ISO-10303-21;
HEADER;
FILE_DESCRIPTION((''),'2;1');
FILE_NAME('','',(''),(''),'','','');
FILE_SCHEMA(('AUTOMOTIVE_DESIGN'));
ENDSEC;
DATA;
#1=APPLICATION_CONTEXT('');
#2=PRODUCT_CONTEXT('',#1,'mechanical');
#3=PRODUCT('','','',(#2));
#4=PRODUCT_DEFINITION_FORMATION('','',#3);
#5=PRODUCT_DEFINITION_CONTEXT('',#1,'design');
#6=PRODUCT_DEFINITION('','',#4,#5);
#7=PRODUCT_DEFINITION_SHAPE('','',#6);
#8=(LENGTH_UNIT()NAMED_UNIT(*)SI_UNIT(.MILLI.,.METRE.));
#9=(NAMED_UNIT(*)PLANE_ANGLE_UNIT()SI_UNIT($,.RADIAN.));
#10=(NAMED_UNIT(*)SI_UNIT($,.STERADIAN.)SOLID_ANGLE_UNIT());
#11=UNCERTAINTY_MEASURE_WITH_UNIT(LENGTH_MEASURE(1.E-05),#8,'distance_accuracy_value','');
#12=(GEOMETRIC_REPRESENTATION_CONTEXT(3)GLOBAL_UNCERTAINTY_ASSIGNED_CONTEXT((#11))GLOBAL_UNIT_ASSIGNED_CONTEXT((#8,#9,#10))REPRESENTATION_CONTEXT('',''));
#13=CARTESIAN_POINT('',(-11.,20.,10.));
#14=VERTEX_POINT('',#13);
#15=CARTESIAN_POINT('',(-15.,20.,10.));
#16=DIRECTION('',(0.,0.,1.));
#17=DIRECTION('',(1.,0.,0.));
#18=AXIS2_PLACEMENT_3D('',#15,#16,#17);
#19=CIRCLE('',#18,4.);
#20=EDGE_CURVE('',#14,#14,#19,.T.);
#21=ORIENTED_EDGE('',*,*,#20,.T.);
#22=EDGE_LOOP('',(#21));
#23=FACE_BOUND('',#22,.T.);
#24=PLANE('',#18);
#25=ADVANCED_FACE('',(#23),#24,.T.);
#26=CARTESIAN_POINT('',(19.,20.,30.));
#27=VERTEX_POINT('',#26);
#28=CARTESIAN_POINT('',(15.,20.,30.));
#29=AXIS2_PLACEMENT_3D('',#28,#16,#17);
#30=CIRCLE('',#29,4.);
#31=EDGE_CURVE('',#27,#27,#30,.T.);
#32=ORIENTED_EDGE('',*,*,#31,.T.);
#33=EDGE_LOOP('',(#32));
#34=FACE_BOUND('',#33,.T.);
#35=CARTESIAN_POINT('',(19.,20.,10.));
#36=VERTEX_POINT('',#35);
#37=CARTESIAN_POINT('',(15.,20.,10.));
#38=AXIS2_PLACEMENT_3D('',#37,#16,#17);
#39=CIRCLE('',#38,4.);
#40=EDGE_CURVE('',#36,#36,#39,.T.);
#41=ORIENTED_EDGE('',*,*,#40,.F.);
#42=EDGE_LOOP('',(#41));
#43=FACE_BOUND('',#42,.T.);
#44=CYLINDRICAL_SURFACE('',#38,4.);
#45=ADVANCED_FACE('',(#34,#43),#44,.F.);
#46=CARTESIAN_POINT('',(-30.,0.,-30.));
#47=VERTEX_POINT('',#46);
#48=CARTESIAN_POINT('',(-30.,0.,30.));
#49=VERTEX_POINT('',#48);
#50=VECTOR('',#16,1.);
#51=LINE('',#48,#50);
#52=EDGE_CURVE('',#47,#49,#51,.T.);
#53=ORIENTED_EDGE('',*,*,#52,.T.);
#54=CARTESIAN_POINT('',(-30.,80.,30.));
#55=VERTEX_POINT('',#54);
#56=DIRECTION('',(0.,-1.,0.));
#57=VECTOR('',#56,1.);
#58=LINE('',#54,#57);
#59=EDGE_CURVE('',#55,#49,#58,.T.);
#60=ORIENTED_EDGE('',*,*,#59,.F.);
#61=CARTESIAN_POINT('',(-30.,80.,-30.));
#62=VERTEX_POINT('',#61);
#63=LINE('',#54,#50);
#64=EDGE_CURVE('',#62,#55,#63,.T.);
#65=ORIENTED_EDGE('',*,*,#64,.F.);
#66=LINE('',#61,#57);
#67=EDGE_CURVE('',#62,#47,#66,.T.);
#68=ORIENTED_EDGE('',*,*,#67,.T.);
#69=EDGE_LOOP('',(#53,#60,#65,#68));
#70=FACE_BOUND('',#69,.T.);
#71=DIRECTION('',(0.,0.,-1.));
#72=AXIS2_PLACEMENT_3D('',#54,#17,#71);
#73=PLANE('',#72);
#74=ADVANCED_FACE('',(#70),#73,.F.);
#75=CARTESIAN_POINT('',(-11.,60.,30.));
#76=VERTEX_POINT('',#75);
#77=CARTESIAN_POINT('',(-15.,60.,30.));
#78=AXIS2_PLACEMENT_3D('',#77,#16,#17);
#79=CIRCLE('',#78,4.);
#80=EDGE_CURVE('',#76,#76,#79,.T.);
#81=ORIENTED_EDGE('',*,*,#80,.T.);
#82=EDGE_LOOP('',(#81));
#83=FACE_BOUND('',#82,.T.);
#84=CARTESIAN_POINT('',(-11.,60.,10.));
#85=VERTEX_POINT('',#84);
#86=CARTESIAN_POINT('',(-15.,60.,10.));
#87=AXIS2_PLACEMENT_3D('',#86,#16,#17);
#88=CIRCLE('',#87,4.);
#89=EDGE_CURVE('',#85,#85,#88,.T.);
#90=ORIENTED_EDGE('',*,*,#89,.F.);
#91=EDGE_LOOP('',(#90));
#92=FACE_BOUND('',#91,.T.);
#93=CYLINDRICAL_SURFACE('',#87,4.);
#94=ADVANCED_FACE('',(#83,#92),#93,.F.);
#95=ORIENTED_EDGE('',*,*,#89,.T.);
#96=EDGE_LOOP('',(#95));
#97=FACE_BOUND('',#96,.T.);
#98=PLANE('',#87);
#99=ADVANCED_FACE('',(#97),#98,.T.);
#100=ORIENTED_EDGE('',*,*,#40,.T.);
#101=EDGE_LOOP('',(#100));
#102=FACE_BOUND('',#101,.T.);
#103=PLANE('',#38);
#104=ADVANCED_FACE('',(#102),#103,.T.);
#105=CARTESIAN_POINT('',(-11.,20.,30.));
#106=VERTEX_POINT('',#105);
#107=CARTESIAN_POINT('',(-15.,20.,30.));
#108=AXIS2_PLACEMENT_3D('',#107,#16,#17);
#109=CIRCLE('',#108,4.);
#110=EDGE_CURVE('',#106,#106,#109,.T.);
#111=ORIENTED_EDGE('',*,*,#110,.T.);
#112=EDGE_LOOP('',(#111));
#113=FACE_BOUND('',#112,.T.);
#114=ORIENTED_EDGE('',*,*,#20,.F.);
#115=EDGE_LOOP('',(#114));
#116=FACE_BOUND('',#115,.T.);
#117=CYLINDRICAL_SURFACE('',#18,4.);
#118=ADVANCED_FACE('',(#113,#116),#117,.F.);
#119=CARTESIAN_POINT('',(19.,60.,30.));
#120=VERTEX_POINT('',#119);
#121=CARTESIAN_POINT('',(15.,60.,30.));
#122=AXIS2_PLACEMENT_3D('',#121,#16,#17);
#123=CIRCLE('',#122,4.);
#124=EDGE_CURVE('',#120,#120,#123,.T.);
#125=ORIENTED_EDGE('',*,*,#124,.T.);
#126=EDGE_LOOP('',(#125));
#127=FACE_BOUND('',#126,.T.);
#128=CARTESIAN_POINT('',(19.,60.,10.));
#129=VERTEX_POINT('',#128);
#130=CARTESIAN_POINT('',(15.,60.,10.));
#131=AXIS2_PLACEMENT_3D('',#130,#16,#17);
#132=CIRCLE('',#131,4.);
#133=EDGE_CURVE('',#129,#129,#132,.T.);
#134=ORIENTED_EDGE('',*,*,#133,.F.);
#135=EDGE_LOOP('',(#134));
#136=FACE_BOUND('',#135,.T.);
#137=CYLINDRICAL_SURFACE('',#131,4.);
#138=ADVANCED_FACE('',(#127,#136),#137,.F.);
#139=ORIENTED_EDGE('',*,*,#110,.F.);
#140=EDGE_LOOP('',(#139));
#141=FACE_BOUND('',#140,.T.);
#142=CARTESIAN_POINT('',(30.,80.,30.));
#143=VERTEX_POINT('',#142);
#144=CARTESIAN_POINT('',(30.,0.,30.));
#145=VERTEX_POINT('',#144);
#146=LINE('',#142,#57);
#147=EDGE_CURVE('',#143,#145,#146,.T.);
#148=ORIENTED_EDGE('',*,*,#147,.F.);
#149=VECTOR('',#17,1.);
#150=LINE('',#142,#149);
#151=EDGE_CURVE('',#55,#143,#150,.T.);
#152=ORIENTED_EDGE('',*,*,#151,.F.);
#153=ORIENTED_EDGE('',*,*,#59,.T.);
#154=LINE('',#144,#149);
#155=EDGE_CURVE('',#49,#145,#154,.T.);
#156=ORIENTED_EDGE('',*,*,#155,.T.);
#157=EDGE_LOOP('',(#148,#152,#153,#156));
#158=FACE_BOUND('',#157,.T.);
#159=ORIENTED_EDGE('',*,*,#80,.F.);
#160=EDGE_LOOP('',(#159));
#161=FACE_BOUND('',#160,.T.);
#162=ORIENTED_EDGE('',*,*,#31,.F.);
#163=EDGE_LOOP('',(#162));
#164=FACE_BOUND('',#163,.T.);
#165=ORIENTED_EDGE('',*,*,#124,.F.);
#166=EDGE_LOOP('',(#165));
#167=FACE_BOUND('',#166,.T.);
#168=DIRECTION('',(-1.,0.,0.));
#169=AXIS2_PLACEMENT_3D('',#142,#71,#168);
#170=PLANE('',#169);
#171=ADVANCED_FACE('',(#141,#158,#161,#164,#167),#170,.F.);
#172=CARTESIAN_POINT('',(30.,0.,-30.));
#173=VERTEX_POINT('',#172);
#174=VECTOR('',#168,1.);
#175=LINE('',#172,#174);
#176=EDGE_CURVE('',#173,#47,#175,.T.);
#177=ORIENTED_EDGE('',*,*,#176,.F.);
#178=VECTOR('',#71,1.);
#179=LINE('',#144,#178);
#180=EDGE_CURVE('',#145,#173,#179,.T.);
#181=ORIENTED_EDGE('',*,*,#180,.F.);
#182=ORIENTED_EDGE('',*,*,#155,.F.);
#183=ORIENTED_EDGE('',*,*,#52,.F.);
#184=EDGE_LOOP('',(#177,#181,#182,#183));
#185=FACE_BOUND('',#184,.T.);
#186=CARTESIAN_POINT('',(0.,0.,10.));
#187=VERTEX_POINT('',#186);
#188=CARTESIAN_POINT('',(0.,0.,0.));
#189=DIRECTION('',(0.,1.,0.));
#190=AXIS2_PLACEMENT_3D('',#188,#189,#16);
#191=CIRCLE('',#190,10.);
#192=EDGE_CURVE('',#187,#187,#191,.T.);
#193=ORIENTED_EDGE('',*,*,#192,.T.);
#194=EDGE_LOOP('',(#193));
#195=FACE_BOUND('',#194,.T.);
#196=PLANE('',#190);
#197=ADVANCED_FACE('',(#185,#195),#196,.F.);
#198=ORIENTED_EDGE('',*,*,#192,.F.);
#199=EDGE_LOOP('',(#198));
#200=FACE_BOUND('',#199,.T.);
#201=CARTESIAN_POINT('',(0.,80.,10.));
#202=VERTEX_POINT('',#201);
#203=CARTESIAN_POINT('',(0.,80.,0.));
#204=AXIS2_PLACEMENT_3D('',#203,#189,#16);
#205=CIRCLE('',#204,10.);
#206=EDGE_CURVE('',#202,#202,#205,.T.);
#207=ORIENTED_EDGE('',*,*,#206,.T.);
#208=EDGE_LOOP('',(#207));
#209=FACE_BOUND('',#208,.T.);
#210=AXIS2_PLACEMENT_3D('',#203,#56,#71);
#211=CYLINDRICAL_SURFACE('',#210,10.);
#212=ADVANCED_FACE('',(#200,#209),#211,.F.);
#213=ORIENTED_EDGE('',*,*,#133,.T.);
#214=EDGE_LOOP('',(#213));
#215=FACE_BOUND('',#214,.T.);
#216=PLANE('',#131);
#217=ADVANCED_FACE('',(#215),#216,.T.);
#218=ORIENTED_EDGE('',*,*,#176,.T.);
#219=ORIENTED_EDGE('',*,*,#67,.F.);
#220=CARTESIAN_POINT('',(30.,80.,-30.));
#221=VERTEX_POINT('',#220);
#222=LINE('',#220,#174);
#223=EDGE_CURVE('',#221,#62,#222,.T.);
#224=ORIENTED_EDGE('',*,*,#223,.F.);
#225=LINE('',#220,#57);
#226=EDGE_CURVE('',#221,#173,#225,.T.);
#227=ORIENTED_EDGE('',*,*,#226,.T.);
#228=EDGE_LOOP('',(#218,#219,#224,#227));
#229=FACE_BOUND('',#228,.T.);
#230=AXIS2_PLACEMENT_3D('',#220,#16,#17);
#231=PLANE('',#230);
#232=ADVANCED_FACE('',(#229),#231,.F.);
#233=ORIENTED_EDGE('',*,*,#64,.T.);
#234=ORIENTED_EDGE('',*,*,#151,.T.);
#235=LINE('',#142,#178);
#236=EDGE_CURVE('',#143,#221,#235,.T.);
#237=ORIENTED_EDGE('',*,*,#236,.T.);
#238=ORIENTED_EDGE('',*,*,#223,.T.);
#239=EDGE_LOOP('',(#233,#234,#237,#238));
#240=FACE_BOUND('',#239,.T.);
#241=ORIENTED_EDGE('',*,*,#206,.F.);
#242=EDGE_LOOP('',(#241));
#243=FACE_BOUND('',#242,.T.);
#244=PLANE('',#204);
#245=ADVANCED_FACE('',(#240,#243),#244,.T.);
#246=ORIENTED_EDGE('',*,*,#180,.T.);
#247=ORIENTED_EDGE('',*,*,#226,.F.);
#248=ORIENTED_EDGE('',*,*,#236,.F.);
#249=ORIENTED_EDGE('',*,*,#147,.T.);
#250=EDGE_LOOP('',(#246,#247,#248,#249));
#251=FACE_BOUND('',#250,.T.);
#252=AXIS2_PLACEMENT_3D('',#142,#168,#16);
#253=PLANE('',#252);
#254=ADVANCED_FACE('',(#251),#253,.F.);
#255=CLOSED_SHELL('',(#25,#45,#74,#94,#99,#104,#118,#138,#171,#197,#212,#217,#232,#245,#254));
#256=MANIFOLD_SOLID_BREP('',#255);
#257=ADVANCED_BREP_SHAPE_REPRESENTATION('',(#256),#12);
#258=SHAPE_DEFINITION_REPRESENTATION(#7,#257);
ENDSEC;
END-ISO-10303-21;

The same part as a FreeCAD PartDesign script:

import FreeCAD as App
import Part
import Sketcher

V = App.Vector

doc = App.newDocument("Part")
body = doc.addObject("PartDesign::Body", "Body")

sketch1 = body.newObject("Sketcher::SketchObject", "Sketch")
sketch1.AttachmentSupport = (doc.getObject("XZ_Plane"), [""])
sketch1.MapMode = "FlatFace"
sketch1.addGeometry([
    Part.LineSegment(V(-30, -30, 0), V(-30, 30, 0)),
    Part.LineSegment(V(-30, 30, 0), V(30, 30, 0)),
    Part.LineSegment(V(30, 30, 0), V(30, -30, 0)),
    Part.LineSegment(V(30, -30, 0), V(-30, -30, 0)),
    Part.Circle(V(0, 0, 0), V(0, 0, 1), 10),
], False)
sketch1.addConstraint([
    Sketcher.Constraint("Coincident", 0, 2, 1, 1),
    Sketcher.Constraint("Coincident", 1, 2, 2, 1),
    Sketcher.Constraint("Coincident", 2, 2, 3, 1),
    Sketcher.Constraint("Coincident", 3, 2, 0, 1),
    Sketcher.Constraint("Vertical", 0),
    Sketcher.Constraint("Horizontal", 1),
    Sketcher.Constraint("Vertical", 2),
    Sketcher.Constraint("Horizontal", 3),
    Sketcher.Constraint("Coincident", 4, 3, -1, 1),
    Sketcher.Constraint("Symmetric", 0, 2, 2, 2, -1, 1),
    Sketcher.Constraint("Equal", 3, 0),
    Sketcher.Constraint("Diameter", 4, 20.0),
    Sketcher.Constraint("DistanceX", 1, 1, 1, 2, 60.0),
])
pad1 = body.newObject("PartDesign::Pad", "Pad")
pad1.Profile = sketch1
pad1.Length = 80
pad1.Reversed = True

sketch2 = body.newObject("Sketcher::SketchObject", "Sketch001")
sketch2.AttachmentSupport = (doc.getObject("XY_Plane"), [""])
sketch2.MapMode = "FlatFace"
sketch2.AttachmentOffset = App.Placement(V(0, 0, 30), App.Rotation())
sketch2.addGeometry([
    Part.Circle(V(-15, 60, 0), V(0, 0, 1), 4),
    Part.Circle(V(15, 60, 0), V(0, 0, 1), 4),
    Part.Circle(V(-15, 20, 0), V(0, 0, 1), 4),
    Part.Circle(V(15, 20, 0), V(0, 0, 1), 4),
], False)
sketch2.addConstraint([
    Sketcher.Constraint("Equal", 0, 1),
    Sketcher.Constraint("Equal", 1, 2),
    Sketcher.Constraint("Equal", 2, 3),
    Sketcher.Constraint("Symmetric", 0, 3, 1, 3, -2),
    Sketcher.Constraint("Symmetric", 2, 3, 3, 3, -2),
    Sketcher.Constraint("Vertical", 0, 3, 2, 3),
    Sketcher.Constraint("Diameter", 0, 8.0),
    Sketcher.Constraint("DistanceX", 0, 3, -1, 1, 15.0),
    Sketcher.Constraint("DistanceY", -1, 1, 0, 3, 60.0),
    Sketcher.Constraint("DistanceY", -1, 1, 2, 3, 20.0),
])
pocket1 = body.newObject("PartDesign::Pocket", "Pocket")
pocket1.Profile = sketch2
pocket1.Length = 20

doc.recompute()
